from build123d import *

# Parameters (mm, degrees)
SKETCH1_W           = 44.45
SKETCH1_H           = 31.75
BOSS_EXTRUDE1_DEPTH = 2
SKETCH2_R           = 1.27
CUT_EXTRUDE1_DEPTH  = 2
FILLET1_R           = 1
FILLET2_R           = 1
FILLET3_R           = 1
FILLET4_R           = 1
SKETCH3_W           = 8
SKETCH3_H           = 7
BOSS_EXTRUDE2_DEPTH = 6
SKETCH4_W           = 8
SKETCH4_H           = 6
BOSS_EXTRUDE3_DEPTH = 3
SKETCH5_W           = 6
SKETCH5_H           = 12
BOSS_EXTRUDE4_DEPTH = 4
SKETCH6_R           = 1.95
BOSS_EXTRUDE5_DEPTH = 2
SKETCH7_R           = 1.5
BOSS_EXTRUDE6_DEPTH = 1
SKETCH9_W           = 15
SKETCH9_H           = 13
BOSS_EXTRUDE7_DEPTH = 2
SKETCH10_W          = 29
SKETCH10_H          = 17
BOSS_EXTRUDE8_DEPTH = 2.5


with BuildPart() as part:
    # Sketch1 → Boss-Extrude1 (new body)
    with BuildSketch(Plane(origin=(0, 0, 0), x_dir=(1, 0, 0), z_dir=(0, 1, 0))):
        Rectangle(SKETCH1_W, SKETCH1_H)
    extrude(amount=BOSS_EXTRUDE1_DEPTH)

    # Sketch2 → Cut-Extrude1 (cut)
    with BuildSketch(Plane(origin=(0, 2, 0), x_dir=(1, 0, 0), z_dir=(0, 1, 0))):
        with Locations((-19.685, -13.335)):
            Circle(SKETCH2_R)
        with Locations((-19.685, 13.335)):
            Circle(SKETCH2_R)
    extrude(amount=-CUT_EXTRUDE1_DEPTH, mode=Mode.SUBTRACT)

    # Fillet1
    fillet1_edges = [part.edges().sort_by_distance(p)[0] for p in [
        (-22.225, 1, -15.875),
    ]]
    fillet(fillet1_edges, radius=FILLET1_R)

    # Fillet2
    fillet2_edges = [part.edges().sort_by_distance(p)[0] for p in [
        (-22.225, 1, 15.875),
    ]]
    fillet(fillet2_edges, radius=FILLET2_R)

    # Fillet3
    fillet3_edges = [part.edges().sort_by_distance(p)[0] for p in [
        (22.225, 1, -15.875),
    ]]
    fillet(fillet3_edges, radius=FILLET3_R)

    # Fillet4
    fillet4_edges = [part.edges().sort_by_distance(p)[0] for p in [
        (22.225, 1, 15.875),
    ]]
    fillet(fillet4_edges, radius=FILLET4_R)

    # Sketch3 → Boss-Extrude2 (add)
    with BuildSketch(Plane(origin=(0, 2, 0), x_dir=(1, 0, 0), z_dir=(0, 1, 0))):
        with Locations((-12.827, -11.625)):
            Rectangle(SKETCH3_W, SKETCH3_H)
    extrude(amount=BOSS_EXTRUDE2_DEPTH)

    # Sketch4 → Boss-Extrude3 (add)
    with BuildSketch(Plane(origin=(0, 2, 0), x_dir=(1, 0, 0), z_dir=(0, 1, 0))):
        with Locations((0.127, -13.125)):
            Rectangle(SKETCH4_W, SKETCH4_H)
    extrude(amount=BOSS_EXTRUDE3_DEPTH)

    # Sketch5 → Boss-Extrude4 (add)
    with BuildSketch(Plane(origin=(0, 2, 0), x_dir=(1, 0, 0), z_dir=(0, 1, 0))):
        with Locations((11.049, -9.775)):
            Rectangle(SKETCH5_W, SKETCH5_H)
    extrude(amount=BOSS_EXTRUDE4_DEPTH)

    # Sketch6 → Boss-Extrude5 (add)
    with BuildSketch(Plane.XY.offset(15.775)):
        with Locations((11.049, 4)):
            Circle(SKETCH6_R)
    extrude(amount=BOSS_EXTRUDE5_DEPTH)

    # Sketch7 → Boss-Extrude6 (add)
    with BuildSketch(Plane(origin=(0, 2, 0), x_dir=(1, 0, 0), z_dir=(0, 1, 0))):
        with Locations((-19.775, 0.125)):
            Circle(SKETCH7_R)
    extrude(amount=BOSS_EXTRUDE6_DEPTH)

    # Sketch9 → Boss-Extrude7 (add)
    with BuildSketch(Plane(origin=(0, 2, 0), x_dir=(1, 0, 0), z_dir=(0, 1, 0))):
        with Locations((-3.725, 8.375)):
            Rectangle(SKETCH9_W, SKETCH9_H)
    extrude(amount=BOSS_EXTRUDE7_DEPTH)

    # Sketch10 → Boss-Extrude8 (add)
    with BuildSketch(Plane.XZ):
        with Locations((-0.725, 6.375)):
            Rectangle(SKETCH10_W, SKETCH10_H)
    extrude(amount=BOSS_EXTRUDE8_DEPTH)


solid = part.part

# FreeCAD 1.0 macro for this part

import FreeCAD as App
import Part
import Sketcher
Q = App.Units.Quantity


def edges_at(feature, points):
    """Names of the edges that pass closest to the given points."""
    edges = feature.Shape.Edges
    near = lambda p: min(range(len(edges)), key=lambda i: edges[i].distToShape(Part.Vertex(*p))[0])
    return sorted({f"Edge{near(p) + 1}" for p in points})

doc = App.newDocument("Part")
body = doc.addObject("PartDesign::Body", "Body")

sketch1 = body.newObject("Sketcher::SketchObject", "Sketch")
sketch1.AttachmentSupport = (doc.getObject("XZ_Plane"), [""])
sketch1.MapMode = "FlatFace"
sketch1.addGeometry([
    Part.LineSegment(App.Vector(-22.225, -15.875, 0), App.Vector(-22.225, 15.875, 0)),
    Part.LineSegment(App.Vector(-22.225, 15.875, 0), App.Vector(22.225, 15.875, 0)),
    Part.LineSegment(App.Vector(22.225, 15.875, 0), App.Vector(22.225, -15.875, 0)),
    Part.LineSegment(App.Vector(22.225, -15.875, 0), App.Vector(-22.225, -15.875, 0)),
], False)
sketch1.addConstraint([
    Sketcher.Constraint("Coincident", 0, 2, 1, 1),
    Sketcher.Constraint("Coincident", 1, 2, 2, 1),
    Sketcher.Constraint("Coincident", 2, 2, 3, 1),
    Sketcher.Constraint("Coincident", 3, 2, 0, 1),
    Sketcher.Constraint("Vertical", 0),
    Sketcher.Constraint("Horizontal", 1),
    Sketcher.Constraint("Vertical", 2),
    Sketcher.Constraint("Horizontal", 3),
    Sketcher.Constraint("Symmetric", 0, 2, 2, 2, -1, 1),
    Sketcher.Constraint("DistanceX", 1, 1, 1, 2, Q("44.45 mm")),
    Sketcher.Constraint("DistanceY", 0, 1, 0, 2, Q("31.75 mm")),
])
pad1 = body.newObject("PartDesign::Pad", "Pad")
pad1.Profile = sketch1
pad1.Length = 2
pad1.Reversed = True

sketch2 = body.newObject("Sketcher::SketchObject", "Sketch001")
sketch2.AttachmentSupport = (doc.getObject("XZ_Plane"), [""])
sketch2.MapMode = "FlatFace"
sketch2.AttachmentOffset = App.Placement(App.Vector(0, 0, -2), App.Rotation())
sketch2.addGeometry([
    Part.Circle(App.Vector(-19.685, 13.335, 0), App.Vector(0, 0, 1), 1.27),
    Part.Circle(App.Vector(-19.685, -13.335, 0), App.Vector(0, 0, 1), 1.27),
], False)
sketch2.addConstraint([
    Sketcher.Constraint("Equal", 0, 1),
    Sketcher.Constraint("Symmetric", 0, 3, 1, 3, -1),
    Sketcher.Constraint("Diameter", 0, Q("2.54 mm")),
    Sketcher.Constraint("DistanceY", 1, 3, 0, 3, Q("26.67 mm")),
    Sketcher.Constraint("DistanceX", 0, 3, -1, 1, Q("19.685 mm")),
])
pocket1 = body.newObject("PartDesign::Pocket", "Pocket")
pocket1.Profile = sketch2
pocket1.Length = 2
pocket1.Reversed = True
doc.recompute()

fillet = body.newObject("PartDesign::Fillet", "Fillet")
fillet.Base = (pocket1, edges_at(pocket1, [(-22.225, 1, -15.875)]))
fillet.Radius = 1
doc.recompute()

fillet2 = body.newObject("PartDesign::Fillet", "Fillet001")
fillet2.Base = (fillet, edges_at(fillet, [(-22.225, 1, 15.875)]))
fillet2.Radius = 1
doc.recompute()

fillet3 = body.newObject("PartDesign::Fillet", "Fillet002")
fillet3.Base = (fillet2, edges_at(fillet2, [(22.225, 1, -15.875)]))
fillet3.Radius = 1
doc.recompute()

fillet4 = body.newObject("PartDesign::Fillet", "Fillet003")
fillet4.Base = (fillet3, edges_at(fillet3, [(22.225, 1, 15.875)]))
fillet4.Radius = 1

sketch3 = body.newObject("Sketcher::SketchObject", "Sketch002")
sketch3.AttachmentSupport = (doc.getObject("XZ_Plane"), [""])
sketch3.MapMode = "FlatFace"
sketch3.AttachmentOffset = App.Placement(App.Vector(0, 0, -2), App.Rotation())
sketch3.addGeometry([
    Part.LineSegment(App.Vector(-16.827, 8.125, 0), App.Vector(-16.827, 15.125, 0)),
    Part.LineSegment(App.Vector(-16.827, 15.125, 0), App.Vector(-8.827, 15.125, 0)),
    Part.LineSegment(App.Vector(-8.827, 15.125, 0), App.Vector(-8.827, 8.125, 0)),
    Part.LineSegment(App.Vector(-8.827, 8.125, 0), App.Vector(-16.827, 8.125, 0)),
], False)
sketch3.addConstraint([
    Sketcher.Constraint("Coincident", 0, 2, 1, 1),
    Sketcher.Constraint("Coincident", 1, 2, 2, 1),
    Sketcher.Constraint("Coincident", 2, 2, 3, 1),
    Sketcher.Constraint("Coincident", 3, 2, 0, 1),
    Sketcher.Constraint("Vertical", 0),
    Sketcher.Constraint("Horizontal", 1),
    Sketcher.Constraint("Vertical", 2),
    Sketcher.Constraint("Horizontal", 3),
    Sketcher.Constraint("DistanceX", 1, 1, 1, 2, Q("8 mm")),
    Sketcher.Constraint("DistanceY", 0, 1, 0, 2, Q("7 mm")),
    Sketcher.Constraint("DistanceX", 0, 2, -1, 1, Q("16.827 mm")),
    Sketcher.Constraint("DistanceY", -1, 1, 0, 2, Q("15.125 mm")),
])
pad2 = body.newObject("PartDesign::Pad", "Pad001")
pad2.Profile = sketch3
pad2.Length = 6
pad2.Reversed = True

sketch4 = body.newObject("Sketcher::SketchObject", "Sketch003")
sketch4.AttachmentSupport = (doc.getObject("XZ_Plane"), [""])
sketch4.MapMode = "FlatFace"
sketch4.AttachmentOffset = App.Placement(App.Vector(0, 0, -2), App.Rotation())
sketch4.addGeometry([
    Part.LineSegment(App.Vector(-3.873, 10.125, 0), App.Vector(-3.873, 16.125, 0)),
    Part.LineSegment(App.Vector(-3.873, 16.125, 0), App.Vector(4.127, 16.125, 0)),
    Part.LineSegment(App.Vector(4.127, 16.125, 0), App.Vector(4.127, 10.125, 0)),
    Part.LineSegment(App.Vector(4.127, 10.125, 0), App.Vector(-3.873, 10.125, 0)),
], False)
sketch4.addConstraint([
    Sketcher.Constraint("Coincident", 0, 2, 1, 1),
    Sketcher.Constraint("Coincident", 1, 2, 2, 1),
    Sketcher.Constraint("Coincident", 2, 2, 3, 1),
    Sketcher.Constraint("Coincident", 3, 2, 0, 1),
    Sketcher.Constraint("Vertical", 0),
    Sketcher.Constraint("Horizontal", 1),
    Sketcher.Constraint("Vertical", 2),
    Sketcher.Constraint("Horizontal", 3),
    Sketcher.Constraint("DistanceX", 1, 1, 1, 2, Q("8 mm")),
    Sketcher.Constraint("DistanceY", 0, 1, 0, 2, Q("6 mm")),
    Sketcher.Constraint("DistanceX", 0, 2, -1, 1, Q("3.873 mm")),
    Sketcher.Constraint("DistanceY", -1, 1, 0, 2, Q("16.125 mm")),
])
pad3 = body.newObject("PartDesign::Pad", "Pad002")
pad3.Profile = sketch4
pad3.Length = 3
pad3.Reversed = True

sketch5 = body.newObject("Sketcher::SketchObject", "Sketch004")
sketch5.AttachmentSupport = (doc.getObject("XZ_Plane"), [""])
sketch5.MapMode = "FlatFace"
sketch5.AttachmentOffset = App.Placement(App.Vector(0, 0, -2), App.Rotation())
sketch5.addGeometry([
    Part.LineSegment(App.Vector(8.049, 3.775, 0), App.Vector(8.049, 15.775, 0)),
    Part.LineSegment(App.Vector(8.049, 15.775, 0), App.Vector(14.049, 15.775, 0)),
    Part.LineSegment(App.Vector(14.049, 15.775, 0), App.Vector(14.049, 3.775, 0)),
    Part.LineSegment(App.Vector(14.049, 3.775, 0), App.Vector(8.049, 3.775, 0)),
], False)
sketch5.addConstraint([
    Sketcher.Constraint("Coincident", 0, 2, 1, 1),
    Sketcher.Constraint("Coincident", 1, 2, 2, 1),
    Sketcher.Constraint("Coincident", 2, 2, 3, 1),
    Sketcher.Constraint("Coincident", 3, 2, 0, 1),
    Sketcher.Constraint("Vertical", 0),
    Sketcher.Constraint("Horizontal", 1),
    Sketcher.Constraint("Vertical", 2),
    Sketcher.Constraint("Horizontal", 3),
    Sketcher.Constraint("DistanceX", 1, 1, 1, 2, Q("6 mm")),
    Sketcher.Constraint("DistanceY", 0, 1, 0, 2, Q("12 mm")),
    Sketcher.Constraint("DistanceX", -1, 1, 0, 2, Q("8.049 mm")),
    Sketcher.Constraint("DistanceY", -1, 1, 0, 2, Q("15.775 mm")),
])
pad4 = body.newObject("PartDesign::Pad", "Pad003")
pad4.Profile = sketch5
pad4.Length = 4
pad4.Reversed = True

sketch6 = body.newObject("Sketcher::SketchObject", "Sketch005")
sketch6.AttachmentSupport = (doc.getObject("XY_Plane"), [""])
sketch6.MapMode = "FlatFace"
sketch6.AttachmentOffset = App.Placement(App.Vector(0, 0, 15.775), App.Rotation())
sketch6.addGeometry(Part.Circle(App.Vector(11.049, 4, 0), App.Vector(0, 0, 1), 1.95), False)
sketch6.addConstraint([
    Sketcher.Constraint("Diameter", 0, Q("3.9 mm")),
    Sketcher.Constraint("DistanceY", -1, 1, 0, 3, Q("4 mm")),
    Sketcher.Constraint("DistanceX", -1, 1, 0, 3, Q("11.049 mm")),
])
pad5 = body.newObject("PartDesign::Pad", "Pad004")
pad5.Profile = sketch6
pad5.Length = 2

sketch7 = body.newObject("Sketcher::SketchObject", "Sketch006")
sketch7.AttachmentSupport = (doc.getObject("XZ_Plane"), [""])
sketch7.MapMode = "FlatFace"
sketch7.AttachmentOffset = App.Placement(App.Vector(0, 0, -2), App.Rotation())
sketch7.addGeometry(Part.Circle(App.Vector(-19.775, -0.125, 0), App.Vector(0, 0, 1), 1.5), False)
sketch7.addConstraint([
    Sketcher.Constraint("Diameter", 0, Q("3 mm")),
    Sketcher.Constraint("DistanceX", 0, 3, -1, 1, Q("19.775 mm")),
    Sketcher.Constraint("DistanceY", 0, 3, -1, 1, Q("0.125 mm")),
])
pad6 = body.newObject("PartDesign::Pad", "Pad005")
pad6.Profile = sketch7
pad6.Length = 1
pad6.Reversed = True

sketch8 = body.newObject("Sketcher::SketchObject", "Sketch007")
sketch8.AttachmentSupport = (doc.getObject("XZ_Plane"), [""])
sketch8.MapMode = "FlatFace"
sketch8.AttachmentOffset = App.Placement(App.Vector(0, 0, -2), App.Rotation())
sketch8.addGeometry([
    Part.LineSegment(App.Vector(-11.225, -14.875, 0), App.Vector(-11.225, -1.875, 0)),
    Part.LineSegment(App.Vector(-11.225, -1.875, 0), App.Vector(3.775, -1.875, 0)),
    Part.LineSegment(App.Vector(3.775, -1.875, 0), App.Vector(3.775, -14.875, 0)),
    Part.LineSegment(App.Vector(3.775, -14.875, 0), App.Vector(-11.225, -14.875, 0)),
], False)
sketch8.addConstraint([
    Sketcher.Constraint("Coincident", 0, 2, 1, 1),
    Sketcher.Constraint("Coincident", 1, 2, 2, 1),
    Sketcher.Constraint("Coincident", 2, 2, 3, 1),
    Sketcher.Constraint("Coincident", 3, 2, 0, 1),
    Sketcher.Constraint("Vertical", 0),
    Sketcher.Constraint("Horizontal", 1),
    Sketcher.Constraint("Vertical", 2),
    Sketcher.Constraint("Horizontal", 3),
    Sketcher.Constraint("DistanceX", 1, 1, 1, 2, Q("15 mm")),
    Sketcher.Constraint("DistanceY", 0, 1, 0, 2, Q("13 mm")),
    Sketcher.Constraint("DistanceX", 0, 2, -1, 1, Q("11.225 mm")),
    Sketcher.Constraint("DistanceY", 0, 2, -1, 1, Q("1.875 mm")),
])
pad7 = body.newObject("PartDesign::Pad", "Pad006")
pad7.Profile = sketch8
pad7.Length = 2
pad7.Reversed = True

sketch9 = body.newObject("Sketcher::SketchObject", "Sketch008")
sketch9.AttachmentSupport = (doc.getObject("XZ_Plane"), [""])
sketch9.MapMode = "FlatFace"
sketch9.addGeometry([
    Part.LineSegment(App.Vector(-15.225, 14.875, 0), App.Vector(-15.225, -2.125, 0)),
    Part.LineSegment(App.Vector(-15.225, -2.125, 0), App.Vector(13.775, -2.125, 0)),
    Part.LineSegment(App.Vector(13.775, -2.125, 0), App.Vector(13.775, 14.875, 0)),
    Part.LineSegment(App.Vector(13.775, 14.875, 0), App.Vector(-15.225, 14.875, 0)),
], False)
sketch9.addConstraint([
    Sketcher.Constraint("Coincident", 0, 2, 1, 1),
    Sketcher.Constraint("Coincident", 1, 2, 2, 1),
    Sketcher.Constraint("Coincident", 2, 2, 3, 1),
    Sketcher.Constraint("Coincident", 3, 2, 0, 1),
    Sketcher.Constraint("Vertical", 0),
    Sketcher.Constraint("Horizontal", 1),
    Sketcher.Constraint("Vertical", 2),
    Sketcher.Constraint("Horizontal", 3),
    Sketcher.Constraint("DistanceX", 1, 1, 1, 2, Q("29 mm")),
    Sketcher.Constraint("DistanceY", 0, 2, 0, 1, Q("17 mm")),
    Sketcher.Constraint("DistanceX", 0, 2, -1, 1, Q("15.225 mm")),
    Sketcher.Constraint("DistanceY", 0, 2, -1, 1, Q("2.125 mm")),
])
pad8 = body.newObject("PartDesign::Pad", "Pad007")
pad8.Profile = sketch9
pad8.Length = 2.5

doc.recompute()
